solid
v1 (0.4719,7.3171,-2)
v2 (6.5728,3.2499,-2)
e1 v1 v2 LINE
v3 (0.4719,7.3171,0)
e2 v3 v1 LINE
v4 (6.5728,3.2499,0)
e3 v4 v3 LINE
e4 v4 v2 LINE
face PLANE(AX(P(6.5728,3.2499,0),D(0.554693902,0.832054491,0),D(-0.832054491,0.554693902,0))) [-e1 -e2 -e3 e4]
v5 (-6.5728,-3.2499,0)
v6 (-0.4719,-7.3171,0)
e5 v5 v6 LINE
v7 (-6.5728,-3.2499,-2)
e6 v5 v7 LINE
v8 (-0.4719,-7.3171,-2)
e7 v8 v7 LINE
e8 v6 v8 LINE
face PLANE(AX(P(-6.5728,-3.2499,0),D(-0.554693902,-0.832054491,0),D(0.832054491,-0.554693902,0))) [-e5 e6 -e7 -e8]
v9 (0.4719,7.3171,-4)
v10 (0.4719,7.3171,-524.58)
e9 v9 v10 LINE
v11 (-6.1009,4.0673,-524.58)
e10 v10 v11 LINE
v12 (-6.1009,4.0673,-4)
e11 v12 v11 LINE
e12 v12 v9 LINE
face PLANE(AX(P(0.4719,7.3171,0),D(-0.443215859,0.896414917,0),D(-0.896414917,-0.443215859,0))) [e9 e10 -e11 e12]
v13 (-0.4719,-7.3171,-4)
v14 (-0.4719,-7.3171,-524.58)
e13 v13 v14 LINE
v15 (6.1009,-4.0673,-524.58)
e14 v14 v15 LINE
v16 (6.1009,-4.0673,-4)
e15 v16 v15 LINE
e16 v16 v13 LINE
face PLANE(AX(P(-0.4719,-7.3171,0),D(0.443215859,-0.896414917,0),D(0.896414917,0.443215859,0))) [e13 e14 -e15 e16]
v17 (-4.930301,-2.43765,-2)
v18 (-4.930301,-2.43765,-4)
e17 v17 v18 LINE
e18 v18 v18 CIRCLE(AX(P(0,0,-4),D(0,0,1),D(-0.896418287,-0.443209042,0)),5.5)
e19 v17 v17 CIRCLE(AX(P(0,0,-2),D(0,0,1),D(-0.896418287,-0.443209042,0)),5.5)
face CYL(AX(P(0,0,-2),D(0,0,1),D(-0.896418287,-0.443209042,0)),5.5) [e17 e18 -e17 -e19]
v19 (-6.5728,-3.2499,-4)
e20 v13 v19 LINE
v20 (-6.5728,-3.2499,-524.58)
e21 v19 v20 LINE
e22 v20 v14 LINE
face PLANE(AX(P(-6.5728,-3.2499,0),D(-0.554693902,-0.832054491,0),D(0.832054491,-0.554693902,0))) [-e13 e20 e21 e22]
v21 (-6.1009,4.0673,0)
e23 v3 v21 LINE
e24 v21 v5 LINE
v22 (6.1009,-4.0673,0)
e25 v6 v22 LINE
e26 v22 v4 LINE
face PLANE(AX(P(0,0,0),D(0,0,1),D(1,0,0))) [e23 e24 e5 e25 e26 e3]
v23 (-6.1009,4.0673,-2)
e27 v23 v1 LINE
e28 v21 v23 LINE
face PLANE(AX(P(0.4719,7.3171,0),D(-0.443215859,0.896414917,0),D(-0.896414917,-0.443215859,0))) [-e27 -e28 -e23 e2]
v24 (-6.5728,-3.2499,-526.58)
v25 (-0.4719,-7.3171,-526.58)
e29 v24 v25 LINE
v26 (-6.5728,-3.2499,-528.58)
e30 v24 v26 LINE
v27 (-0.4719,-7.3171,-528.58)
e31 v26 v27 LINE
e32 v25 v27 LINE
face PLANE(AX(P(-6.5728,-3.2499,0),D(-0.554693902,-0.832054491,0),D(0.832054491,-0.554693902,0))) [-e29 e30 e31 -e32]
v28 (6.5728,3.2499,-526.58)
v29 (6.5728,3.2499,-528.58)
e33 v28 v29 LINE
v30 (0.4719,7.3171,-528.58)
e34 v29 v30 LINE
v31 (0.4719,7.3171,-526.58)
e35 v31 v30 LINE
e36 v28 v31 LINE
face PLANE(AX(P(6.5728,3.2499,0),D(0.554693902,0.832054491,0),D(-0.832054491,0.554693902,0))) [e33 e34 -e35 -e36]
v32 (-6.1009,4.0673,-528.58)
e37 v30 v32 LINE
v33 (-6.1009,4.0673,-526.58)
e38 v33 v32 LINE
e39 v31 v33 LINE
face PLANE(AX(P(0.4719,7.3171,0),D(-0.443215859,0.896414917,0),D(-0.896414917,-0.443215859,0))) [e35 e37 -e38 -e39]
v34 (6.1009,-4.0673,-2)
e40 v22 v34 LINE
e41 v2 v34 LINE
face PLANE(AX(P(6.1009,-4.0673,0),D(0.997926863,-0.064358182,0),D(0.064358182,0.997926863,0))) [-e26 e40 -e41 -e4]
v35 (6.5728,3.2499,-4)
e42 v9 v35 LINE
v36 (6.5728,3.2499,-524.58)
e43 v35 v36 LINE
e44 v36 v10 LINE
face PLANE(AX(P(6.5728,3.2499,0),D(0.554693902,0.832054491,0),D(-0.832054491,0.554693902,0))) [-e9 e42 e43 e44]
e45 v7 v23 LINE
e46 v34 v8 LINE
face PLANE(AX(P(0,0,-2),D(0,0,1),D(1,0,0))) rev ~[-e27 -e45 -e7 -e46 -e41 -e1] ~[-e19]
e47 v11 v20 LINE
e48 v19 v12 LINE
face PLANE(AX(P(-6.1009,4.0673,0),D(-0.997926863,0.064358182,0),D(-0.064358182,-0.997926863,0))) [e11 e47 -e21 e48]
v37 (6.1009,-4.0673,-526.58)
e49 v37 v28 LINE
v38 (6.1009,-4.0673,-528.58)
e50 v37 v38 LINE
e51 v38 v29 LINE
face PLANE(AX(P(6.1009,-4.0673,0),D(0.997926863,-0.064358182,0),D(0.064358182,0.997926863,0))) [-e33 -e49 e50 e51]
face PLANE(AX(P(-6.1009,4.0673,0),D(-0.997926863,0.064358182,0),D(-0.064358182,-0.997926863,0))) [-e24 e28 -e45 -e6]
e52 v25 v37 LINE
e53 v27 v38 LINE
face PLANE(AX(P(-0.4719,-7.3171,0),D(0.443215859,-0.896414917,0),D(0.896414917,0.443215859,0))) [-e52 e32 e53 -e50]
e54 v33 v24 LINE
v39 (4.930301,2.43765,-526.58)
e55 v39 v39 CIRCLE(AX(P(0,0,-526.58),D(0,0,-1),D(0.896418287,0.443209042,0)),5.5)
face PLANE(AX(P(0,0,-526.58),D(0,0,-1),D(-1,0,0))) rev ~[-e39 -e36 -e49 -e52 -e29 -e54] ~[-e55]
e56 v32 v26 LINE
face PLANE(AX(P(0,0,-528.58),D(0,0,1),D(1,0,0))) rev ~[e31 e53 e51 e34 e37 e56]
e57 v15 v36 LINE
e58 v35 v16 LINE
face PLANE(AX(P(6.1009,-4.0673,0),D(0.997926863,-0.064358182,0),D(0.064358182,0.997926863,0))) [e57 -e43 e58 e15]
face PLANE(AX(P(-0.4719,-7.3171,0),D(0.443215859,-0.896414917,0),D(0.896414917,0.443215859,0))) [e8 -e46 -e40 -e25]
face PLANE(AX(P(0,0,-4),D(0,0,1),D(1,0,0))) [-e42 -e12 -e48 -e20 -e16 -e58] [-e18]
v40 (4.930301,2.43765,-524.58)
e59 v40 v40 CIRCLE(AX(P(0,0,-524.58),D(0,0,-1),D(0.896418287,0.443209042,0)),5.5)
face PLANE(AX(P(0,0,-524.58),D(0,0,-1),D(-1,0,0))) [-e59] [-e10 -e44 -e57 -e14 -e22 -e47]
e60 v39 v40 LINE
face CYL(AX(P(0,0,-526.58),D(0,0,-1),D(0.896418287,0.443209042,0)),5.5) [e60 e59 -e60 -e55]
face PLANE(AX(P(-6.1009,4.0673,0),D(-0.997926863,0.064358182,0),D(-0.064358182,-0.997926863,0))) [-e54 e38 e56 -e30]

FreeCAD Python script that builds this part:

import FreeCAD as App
import Part
import Sketcher
from FreeCAD import Vector
Q = App.Units.Quantity

doc = App.newDocument("Part")
params = doc.addObject("Spreadsheet::Sheet", "Params")
for row, (alias, value) in enumerate([
    ("pad1_length", "528.58 mm"),
    ("sketch2_diameter", "11 mm"),
    ("pocket1_length", "2 mm"),
    ("sketch3_diameter", "11 mm"),
    ("pocket2_length", "2 mm"),
], start=1):
    params.set(f"A{row}", alias)
    params.set(f"B{row}", "=" + value)
    params.setAlias(f"B{row}", alias)

body = doc.addObject("PartDesign::Body", "Body")

sketch1 = body.newObject("Sketcher::SketchObject", "Sketch")
sketch1.AttachmentSupport = (doc.getObject("XY_Plane"), [""])
sketch1.MapMode = "FlatFace"
sketch1.addGeometry([
    Part.LineSegment(Vector(0, 7, 0), Vector(-6, 4, 0)),
    Part.LineSegment(Vector(-6, 4, 0), Vector(-7, -3, 0)),
    Part.LineSegment(Vector(-7, -3, 0), Vector(0, -7, 0)),
    Part.LineSegment(Vector(0, -7, 0), Vector(6, -4, 0)),
    Part.LineSegment(Vector(6, -4, 0), Vector(7, 3, 0)),
    Part.LineSegment(Vector(7, 3, 0), Vector(0, 7, 0)),
], False)
sketch1.addConstraint([
    Sketcher.Constraint("Coincident", 0, 2, 1, 1),
    Sketcher.Constraint("Coincident", 1, 2, 2, 1),
    Sketcher.Constraint("Coincident", 2, 2, 3, 1),
    Sketcher.Constraint("Coincident", 3, 2, 4, 1),
    Sketcher.Constraint("Coincident", 4, 2, 5, 1),
    Sketcher.Constraint("Coincident", 5, 2, 0, 1),
    Sketcher.Constraint("Symmetric", 0, 2, 3, 2, -1, 1),
    Sketcher.Constraint("Symmetric", 1, 2, 4, 2, -1, 1),
    Sketcher.Constraint("Symmetric", 2, 2, 5, 2, -1, 1),
    Sketcher.Constraint("Equal", 0, 1),
    Sketcher.Constraint("Equal", 1, 2),
    Sketcher.Constraint("Angle", 0, Q("-153.6908 deg")),
    Sketcher.Constraint("Angle", 1, Q("-93.69 deg")),
    Sketcher.Constraint("Angle", 2, Q("-33.6896 deg")),
    Sketcher.Constraint("DistanceY", 1, 2, -1, 1, 3.25),
])
pad1 = body.newObject("PartDesign::Pad", "Pad")
pad1.Profile = sketch1
pad1.setExpression("Length", "Params.pad1_length")
pad1.Reversed = True

sketch2 = body.newObject("Sketcher::SketchObject", "Sketch001")
sketch2.AttachmentSupport = (doc.getObject("XY_Plane"), [""])
sketch2.MapMode = "FlatFace"
sketch2.AttachmentOffset = App.Placement(Vector(0, 0, -2), App.Rotation())
sketch2.addGeometry([
    Part.Circle(Vector(0, 0, 0), Vector(0, 0, 1), 13),
    Part.Circle(Vector(0, 0, 0), Vector(0, 0, 1), 6),
], False)
sketch2.addConstraint([
    Sketcher.Constraint("Coincident", 0, 3, -1, 1),
    Sketcher.Constraint("Coincident", 1, 3, -1, 1),
    Sketcher.Constraint("Diameter", 1, 11.0),
    Sketcher.Constraint("Diameter", 0, 26.2848),
])
sketch2.setExpression("Constraints[2]", "Params.sketch2_diameter")
pocket1 = body.newObject("PartDesign::Pocket", "Pocket")
pocket1.Profile = sketch2
pocket1.setExpression("Length", "Params.pocket1_length")

sketch3 = body.newObject("Sketcher::SketchObject", "Sketch002")
sketch3.AttachmentSupport = (doc.getObject("XY_Plane"), [""])
sketch3.MapMode = "FlatFace"
sketch3.AttachmentOffset = App.Placement(Vector(0, 0, -526.58), App.Rotation())
sketch3.addGeometry([
    Part.Circle(Vector(0, 0, 0), Vector(0, 0, 1), 13),
    Part.Circle(Vector(0, 0, 0), Vector(0, 0, 1), 6),
], False)
sketch3.addConstraint([
    Sketcher.Constraint("Coincident", 0, 3, -1, 1),
    Sketcher.Constraint("Coincident", 1, 3, -1, 1),
    Sketcher.Constraint("Diameter", 1, 11.0),
    Sketcher.Constraint("Diameter", 0, 26.2848),
])
sketch3.setExpression("Constraints[2]", "Params.sketch3_diameter")
pocket2 = body.newObject("PartDesign::Pocket", "Pocket001")
pocket2.Profile = sketch3
pocket2.setExpression("Length", "Params.pocket2_length")
pocket2.Reversed = True

doc.recompute()
